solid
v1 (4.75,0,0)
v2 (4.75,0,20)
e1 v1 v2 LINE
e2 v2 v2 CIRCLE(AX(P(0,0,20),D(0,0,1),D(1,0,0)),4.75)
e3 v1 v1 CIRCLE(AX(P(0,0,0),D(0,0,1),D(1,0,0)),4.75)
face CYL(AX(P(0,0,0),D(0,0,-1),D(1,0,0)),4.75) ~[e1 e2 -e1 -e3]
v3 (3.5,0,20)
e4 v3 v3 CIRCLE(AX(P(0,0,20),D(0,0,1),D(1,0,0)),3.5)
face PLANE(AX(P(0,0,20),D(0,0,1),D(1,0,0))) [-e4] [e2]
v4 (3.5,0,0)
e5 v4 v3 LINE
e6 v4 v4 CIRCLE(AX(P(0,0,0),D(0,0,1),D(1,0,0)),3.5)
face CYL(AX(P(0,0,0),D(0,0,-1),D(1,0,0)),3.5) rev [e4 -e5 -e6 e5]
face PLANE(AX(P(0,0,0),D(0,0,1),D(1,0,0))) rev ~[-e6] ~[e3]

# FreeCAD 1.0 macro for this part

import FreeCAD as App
import Part
import Sketcher
Q = App.Units.Quantity

doc = App.newDocument("Part")
body = doc.addObject("PartDesign::Body", "Body")

sketch1 = body.newObject("Sketcher::SketchObject", "Sketch")
sketch1.AttachmentSupport = (doc.getObject("XY_Plane"), [""])
sketch1.MapMode = "FlatFace"
sketch1.addGeometry(Part.Circle(App.Vector(0, 0, 0), App.Vector(0, 0, 1), 4.75), False)
sketch1.addGeometry(Part.Circle(App.Vector(0, 0, 0), App.Vector(0, 0, 1), 3.5), False)
sketch1.addConstraint(Sketcher.Constraint("Coincident", 0, 3, -1, 1))
sketch1.addConstraint(Sketcher.Constraint("Coincident", 1, 3, -1, 1))
sketch1.addConstraint(Sketcher.Constraint("Diameter", 1, Q("7 mm")))
sketch1.addConstraint(Sketcher.Constraint("Diameter", 0, Q("9.5 mm")))
pad1 = body.newObject("PartDesign::Pad", "Pad")
pad1.Profile = sketch1
pad1.Length = 20

doc.recompute()
